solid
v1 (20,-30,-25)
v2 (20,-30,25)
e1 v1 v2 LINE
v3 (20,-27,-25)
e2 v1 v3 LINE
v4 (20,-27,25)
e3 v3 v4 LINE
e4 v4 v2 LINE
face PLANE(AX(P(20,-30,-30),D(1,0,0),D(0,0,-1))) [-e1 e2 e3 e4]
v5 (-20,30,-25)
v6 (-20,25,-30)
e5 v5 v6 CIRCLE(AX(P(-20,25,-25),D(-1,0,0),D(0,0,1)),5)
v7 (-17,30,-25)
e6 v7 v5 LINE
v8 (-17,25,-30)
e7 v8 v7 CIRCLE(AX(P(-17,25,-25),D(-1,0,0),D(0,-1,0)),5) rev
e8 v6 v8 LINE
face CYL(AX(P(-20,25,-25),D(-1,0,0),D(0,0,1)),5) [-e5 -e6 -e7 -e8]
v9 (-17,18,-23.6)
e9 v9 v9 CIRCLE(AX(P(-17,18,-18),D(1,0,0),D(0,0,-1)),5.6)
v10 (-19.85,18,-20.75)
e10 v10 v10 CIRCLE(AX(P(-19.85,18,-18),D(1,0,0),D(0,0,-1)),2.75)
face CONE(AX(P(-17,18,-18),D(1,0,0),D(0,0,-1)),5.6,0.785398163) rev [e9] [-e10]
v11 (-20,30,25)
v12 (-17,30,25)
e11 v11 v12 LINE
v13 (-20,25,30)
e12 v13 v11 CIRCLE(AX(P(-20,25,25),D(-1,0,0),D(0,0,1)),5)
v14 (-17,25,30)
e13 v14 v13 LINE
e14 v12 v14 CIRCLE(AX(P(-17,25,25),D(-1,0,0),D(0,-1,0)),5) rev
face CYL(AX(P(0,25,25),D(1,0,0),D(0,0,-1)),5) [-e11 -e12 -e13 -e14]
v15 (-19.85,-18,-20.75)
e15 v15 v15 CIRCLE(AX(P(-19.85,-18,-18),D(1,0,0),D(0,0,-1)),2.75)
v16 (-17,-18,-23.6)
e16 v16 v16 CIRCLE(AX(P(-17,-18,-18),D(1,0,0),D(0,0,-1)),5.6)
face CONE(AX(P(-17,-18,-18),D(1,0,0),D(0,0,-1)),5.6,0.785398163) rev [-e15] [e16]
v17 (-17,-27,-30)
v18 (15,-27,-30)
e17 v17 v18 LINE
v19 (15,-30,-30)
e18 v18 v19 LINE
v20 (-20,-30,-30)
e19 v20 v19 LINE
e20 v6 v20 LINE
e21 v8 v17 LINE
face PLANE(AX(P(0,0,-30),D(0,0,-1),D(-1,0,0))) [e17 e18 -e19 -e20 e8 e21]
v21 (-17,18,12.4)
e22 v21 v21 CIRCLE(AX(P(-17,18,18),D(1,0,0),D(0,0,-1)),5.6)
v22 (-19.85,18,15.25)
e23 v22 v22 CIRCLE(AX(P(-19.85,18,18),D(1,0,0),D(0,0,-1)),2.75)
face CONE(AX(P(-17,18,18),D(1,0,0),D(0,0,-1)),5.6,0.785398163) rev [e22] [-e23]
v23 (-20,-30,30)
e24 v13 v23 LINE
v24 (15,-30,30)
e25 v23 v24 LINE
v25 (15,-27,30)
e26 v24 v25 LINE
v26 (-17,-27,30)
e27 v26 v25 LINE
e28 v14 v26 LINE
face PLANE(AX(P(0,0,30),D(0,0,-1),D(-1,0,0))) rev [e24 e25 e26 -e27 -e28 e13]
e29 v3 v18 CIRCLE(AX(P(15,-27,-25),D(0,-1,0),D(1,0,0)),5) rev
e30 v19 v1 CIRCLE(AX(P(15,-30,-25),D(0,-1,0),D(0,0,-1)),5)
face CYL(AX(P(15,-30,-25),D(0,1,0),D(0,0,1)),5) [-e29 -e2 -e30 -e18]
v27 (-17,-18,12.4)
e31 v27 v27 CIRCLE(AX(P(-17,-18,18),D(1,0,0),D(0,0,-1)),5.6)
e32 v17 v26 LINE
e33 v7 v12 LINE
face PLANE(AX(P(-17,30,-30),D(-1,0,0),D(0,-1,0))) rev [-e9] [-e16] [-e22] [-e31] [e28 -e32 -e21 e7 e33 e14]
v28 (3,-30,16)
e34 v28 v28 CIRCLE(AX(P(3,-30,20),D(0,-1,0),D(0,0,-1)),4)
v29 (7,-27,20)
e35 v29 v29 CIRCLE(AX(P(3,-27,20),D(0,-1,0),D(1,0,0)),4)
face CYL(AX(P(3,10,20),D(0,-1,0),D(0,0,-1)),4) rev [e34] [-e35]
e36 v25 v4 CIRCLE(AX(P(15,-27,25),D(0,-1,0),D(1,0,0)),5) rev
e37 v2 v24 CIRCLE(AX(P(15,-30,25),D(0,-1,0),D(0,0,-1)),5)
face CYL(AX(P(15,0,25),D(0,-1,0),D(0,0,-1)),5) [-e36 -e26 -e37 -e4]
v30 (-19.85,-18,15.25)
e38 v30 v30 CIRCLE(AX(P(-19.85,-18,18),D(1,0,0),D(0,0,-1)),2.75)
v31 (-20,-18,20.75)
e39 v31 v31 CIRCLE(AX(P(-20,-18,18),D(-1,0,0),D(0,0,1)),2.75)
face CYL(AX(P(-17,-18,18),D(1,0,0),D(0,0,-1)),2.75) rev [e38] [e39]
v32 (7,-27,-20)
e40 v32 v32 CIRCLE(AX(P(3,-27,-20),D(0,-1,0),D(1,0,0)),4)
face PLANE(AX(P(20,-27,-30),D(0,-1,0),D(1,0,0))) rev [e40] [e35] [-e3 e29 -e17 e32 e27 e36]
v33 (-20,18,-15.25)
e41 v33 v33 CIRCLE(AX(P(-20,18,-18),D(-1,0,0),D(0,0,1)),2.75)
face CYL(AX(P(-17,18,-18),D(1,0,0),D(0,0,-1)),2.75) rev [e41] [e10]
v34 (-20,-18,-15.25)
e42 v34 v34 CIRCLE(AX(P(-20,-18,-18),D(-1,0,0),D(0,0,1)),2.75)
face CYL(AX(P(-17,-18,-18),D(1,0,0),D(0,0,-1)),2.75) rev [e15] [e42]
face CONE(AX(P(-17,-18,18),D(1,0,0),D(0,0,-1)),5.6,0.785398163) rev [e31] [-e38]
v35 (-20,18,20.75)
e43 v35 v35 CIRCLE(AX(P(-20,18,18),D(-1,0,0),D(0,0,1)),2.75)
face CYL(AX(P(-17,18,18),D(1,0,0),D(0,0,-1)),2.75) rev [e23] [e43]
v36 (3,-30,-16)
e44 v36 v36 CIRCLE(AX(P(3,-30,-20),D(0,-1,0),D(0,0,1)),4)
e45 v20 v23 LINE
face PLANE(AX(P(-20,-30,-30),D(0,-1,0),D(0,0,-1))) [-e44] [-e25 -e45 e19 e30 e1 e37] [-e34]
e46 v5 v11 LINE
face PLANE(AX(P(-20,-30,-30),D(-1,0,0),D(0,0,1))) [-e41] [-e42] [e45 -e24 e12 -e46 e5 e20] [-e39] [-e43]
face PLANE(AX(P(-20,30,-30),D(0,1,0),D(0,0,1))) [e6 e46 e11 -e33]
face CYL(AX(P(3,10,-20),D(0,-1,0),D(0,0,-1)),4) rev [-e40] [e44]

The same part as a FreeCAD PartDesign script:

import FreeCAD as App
import Part
import Sketcher

V = App.Vector
Q = App.Units.Quantity


def edges_at(feature, points):
    """Names of the edges that pass closest to the given points."""
    edges = feature.Shape.Edges
    near = lambda p: min(range(len(edges)), key=lambda i: edges[i].distToShape(Part.Vertex(*p))[0])
    return sorted({f"Edge{near(p) + 1}" for p in points})

doc = App.newDocument("Part")
params = doc.addObject("Spreadsheet::Sheet", "Params")
for row, (alias, value) in enumerate([
    ("sketch1_width", "40 mm"),
    ("sketch1_height", "60 mm"),
    ("pad1_length", "30 mm"),
    ("pad1_length2", "30 mm"),
    ("sketch2_width", "37 mm"),
    ("sketch2_height", "57 mm"),
    ("sketch3_diameter", "8 mm"),
    ("pocket2_length", "40 mm"),
    ("sketch4_diameter", "5.5 mm"),
    ("hole_diameter", "5.5 mm"),
    ("hole_depth", "10 mm"),
    ("hole_csink_diameter", "11.2 mm"),
    ("fillet_radius", "5 mm"),
], start=1):
    params.set(f"A{row}", alias)
    params.set(f"B{row}", "=" + value)
    params.setAlias(f"B{row}", alias)

body = doc.addObject("PartDesign::Body", "Body")

# Sketch on XY plane
sketch1 = doc.addObject("Sketcher::SketchObject", "Sketch")
body.addObject(sketch1)
sketch1.AttachmentSupport = (doc.XY_Plane, [""])
sketch1.MapMode = "FlatFace"
sketch1.addGeometry([
    Part.LineSegment(V(-20, 30, 0), V(-20, -30, 0)),
    Part.LineSegment(V(-20, -30, 0), V(20, -30, 0)),
    Part.LineSegment(V(20, -30, 0), V(20, 30, 0)),
    Part.LineSegment(V(20, 30, 0), V(-20, 30, 0)),
], False)
sketch1.addConstraint([
    Sketcher.Constraint("Coincident", 0, 2, 1, 1),
    Sketcher.Constraint("Coincident", 1, 2, 2, 1),
    Sketcher.Constraint("Coincident", 2, 2, 3, 1),
    Sketcher.Constraint("Coincident", 3, 2, 0, 1),
    Sketcher.Constraint("Vertical", 0),
    Sketcher.Constraint("Horizontal", 1),
    Sketcher.Constraint("Vertical", 2),
    Sketcher.Constraint("Horizontal", 3),
    Sketcher.Constraint("Symmetric", 0, 2, 2, 2, -1, 1),
    Sketcher.Constraint("DistanceX", 1, 1, 1, 2, Q("40 mm")),
    Sketcher.Constraint("DistanceY", 0, 2, 0, 1, Q("60 mm")),
])
sketch1.setExpression("Constraints[9]", "Params.sketch1_width")
sketch1.setExpression("Constraints[10]", "Params.sketch1_height")
pad1 = doc.addObject("PartDesign::Pad", "Pad")
body.addObject(pad1)
pad1.Profile = sketch1
pad1.Type = "TwoLengths"
pad1.setExpression("Length", "Params.pad1_length")
pad1.setExpression("Length2", "Params.pad1_length2")

# Sketch on XY plane
sketch2 = doc.addObject("Sketcher::SketchObject", "Sketch001")
body.addObject(sketch2)
sketch2.AttachmentSupport = (doc.XY_Plane, [""])
sketch2.MapMode = "FlatFace"
sketch2.AttachmentOffset = App.Placement(V(0, 0, 30), App.Rotation())
sketch2.addGeometry([
    Part.LineSegment(V(-17, 30, 0), V(-17, -27, 0)),
    Part.LineSegment(V(-17, -27, 0), V(20, -27, 0)),
    Part.LineSegment(V(20, -27, 0), V(20, 30, 0)),
    Part.LineSegment(V(20, 30, 0), V(-17, 30, 0)),
], False)
sketch2.addConstraint([
    Sketcher.Constraint("Coincident", 0, 2, 1, 1),
    Sketcher.Constraint("Coincident", 1, 2, 2, 1),
    Sketcher.Constraint("Coincident", 2, 2, 3, 1),
    Sketcher.Constraint("Coincident", 3, 2, 0, 1),
    Sketcher.Constraint("Vertical", 0),
    Sketcher.Constraint("Horizontal", 1),
    Sketcher.Constraint("Vertical", 2),
    Sketcher.Constraint("Horizontal", 3),
    Sketcher.Constraint("DistanceX", 1, 1, 1, 2, Q("37 mm")),
    Sketcher.Constraint("DistanceY", 0, 2, 0, 1, Q("57 mm")),
    Sketcher.Constraint("DistanceX", 0, 2, -1, 1, Q("17 mm")),
    Sketcher.Constraint("DistanceY", 0, 2, -1, 1, Q("27 mm")),
])
sketch2.setExpression("Constraints[8]", "Params.sketch2_width")
sketch2.setExpression("Constraints[9]", "Params.sketch2_height")
pocket1 = doc.addObject("PartDesign::Pocket", "Pocket")
body.addObject(pocket1)
pocket1.Profile = sketch2
pocket1.Type = "ThroughAll"

# Sketch on XZ plane
sketch3 = doc.addObject("Sketcher::SketchObject", "Sketch002")
body.addObject(sketch3)
sketch3.AttachmentSupport = (doc.XZ_Plane, [""])
sketch3.MapMode = "FlatFace"
sketch3.AttachmentOffset = App.Placement(V(0, 0, 30), App.Rotation())
sketch3.addGeometry([
    Part.Circle(V(3, 20, 0), V(0, 0, 1), 4),
    Part.Circle(V(3, -20, 0), V(0, 0, 1), 4),
], False)
sketch3.addConstraint([
    Sketcher.Constraint("Equal", 0, 1),
    Sketcher.Constraint("Symmetric", 0, 3, 1, 3, -1),
    Sketcher.Constraint("Diameter", 0, Q("8 mm")),
    Sketcher.Constraint("DistanceX", -1, 1, 0, 3, Q("3 mm")),
    Sketcher.Constraint("DistanceY", -1, 1, 0, 3, Q("20 mm")),
])
sketch3.setExpression("Constraints[2]", "Params.sketch3_diameter")
pocket2 = doc.addObject("PartDesign::Pocket", "Pocket001")
body.addObject(pocket2)
pocket2.Profile = sketch3
pocket2.setExpression("Length", "Params.pocket2_length")

# Sketch on YZ plane
sketch4 = doc.addObject("Sketcher::SketchObject", "Sketch003")
body.addObject(sketch4)
sketch4.AttachmentSupport = (doc.YZ_Plane, [""])
sketch4.MapMode = "FlatFace"
sketch4.AttachmentOffset = App.Placement(V(0, 0, -17), App.Rotation())
sketch4.addGeometry([
    Part.Circle(V(18, 18, 0), V(0, 0, 1), 2.8),
    Part.Circle(V(18, -18, 0), V(0, 0, 1), 2.8),
    Part.Circle(V(-18, -18, 0), V(0, 0, 1), 2.8),
    Part.Circle(V(-18, 18, 0), V(0, 0, 1), 2.8),
], False)
sketch4.addConstraint([
    Sketcher.Constraint("Equal", 0, 1),
    Sketcher.Constraint("Equal", 1, 2),
    Sketcher.Constraint("Equal", 2, 3),
    Sketcher.Constraint("Symmetric", 0, 3, 2, 3, -1, 1),
    Sketcher.Constraint("Symmetric", 1, 3, 3, 3, -1, 1),
    Sketcher.Constraint("Symmetric", 1, 3, 2, 3, -2),
    Sketcher.Constraint("Diameter", 0, Q("5.5 mm")),
    Sketcher.Constraint("DistanceX", -1, 1, 0, 3, Q("18 mm")),
    Sketcher.Constraint("DistanceY", -1, 1, 0, 3, Q("18 mm")),
])
sketch4.setExpression("Constraints[6]", "Params.sketch4_diameter")
doc.recompute()
hole = doc.addObject("PartDesign::Hole", "Hole")
body.addObject(hole)
hole.Profile = sketch4
hole.ThreadType = "None"
hole.setExpression("Diameter", "Params.hole_diameter")
hole.DepthType = "Dimension"
hole.setExpression("Depth", "Params.hole_depth")
hole.DrillPoint = "Angled"
hole.DrillPointAngle = 118
hole.HoleCutType = "Countersink"
hole.setExpression("HoleCutDiameter", "Params.hole_csink_diameter")
hole.HoleCutCountersinkAngle = 90
doc.recompute()

fillet = doc.addObject("PartDesign::Fillet", "Fillet")
body.addObject(fillet)
fillet.Base = (hole, edges_at(hole, [
    (20, -28.5, 30),
    (-18.5, 30, 30),
    (-18.5, 30, -30),
    (20, -28.5, -30),
]))
fillet.setExpression("Radius", "Params.fillet_radius")

doc.recompute()
